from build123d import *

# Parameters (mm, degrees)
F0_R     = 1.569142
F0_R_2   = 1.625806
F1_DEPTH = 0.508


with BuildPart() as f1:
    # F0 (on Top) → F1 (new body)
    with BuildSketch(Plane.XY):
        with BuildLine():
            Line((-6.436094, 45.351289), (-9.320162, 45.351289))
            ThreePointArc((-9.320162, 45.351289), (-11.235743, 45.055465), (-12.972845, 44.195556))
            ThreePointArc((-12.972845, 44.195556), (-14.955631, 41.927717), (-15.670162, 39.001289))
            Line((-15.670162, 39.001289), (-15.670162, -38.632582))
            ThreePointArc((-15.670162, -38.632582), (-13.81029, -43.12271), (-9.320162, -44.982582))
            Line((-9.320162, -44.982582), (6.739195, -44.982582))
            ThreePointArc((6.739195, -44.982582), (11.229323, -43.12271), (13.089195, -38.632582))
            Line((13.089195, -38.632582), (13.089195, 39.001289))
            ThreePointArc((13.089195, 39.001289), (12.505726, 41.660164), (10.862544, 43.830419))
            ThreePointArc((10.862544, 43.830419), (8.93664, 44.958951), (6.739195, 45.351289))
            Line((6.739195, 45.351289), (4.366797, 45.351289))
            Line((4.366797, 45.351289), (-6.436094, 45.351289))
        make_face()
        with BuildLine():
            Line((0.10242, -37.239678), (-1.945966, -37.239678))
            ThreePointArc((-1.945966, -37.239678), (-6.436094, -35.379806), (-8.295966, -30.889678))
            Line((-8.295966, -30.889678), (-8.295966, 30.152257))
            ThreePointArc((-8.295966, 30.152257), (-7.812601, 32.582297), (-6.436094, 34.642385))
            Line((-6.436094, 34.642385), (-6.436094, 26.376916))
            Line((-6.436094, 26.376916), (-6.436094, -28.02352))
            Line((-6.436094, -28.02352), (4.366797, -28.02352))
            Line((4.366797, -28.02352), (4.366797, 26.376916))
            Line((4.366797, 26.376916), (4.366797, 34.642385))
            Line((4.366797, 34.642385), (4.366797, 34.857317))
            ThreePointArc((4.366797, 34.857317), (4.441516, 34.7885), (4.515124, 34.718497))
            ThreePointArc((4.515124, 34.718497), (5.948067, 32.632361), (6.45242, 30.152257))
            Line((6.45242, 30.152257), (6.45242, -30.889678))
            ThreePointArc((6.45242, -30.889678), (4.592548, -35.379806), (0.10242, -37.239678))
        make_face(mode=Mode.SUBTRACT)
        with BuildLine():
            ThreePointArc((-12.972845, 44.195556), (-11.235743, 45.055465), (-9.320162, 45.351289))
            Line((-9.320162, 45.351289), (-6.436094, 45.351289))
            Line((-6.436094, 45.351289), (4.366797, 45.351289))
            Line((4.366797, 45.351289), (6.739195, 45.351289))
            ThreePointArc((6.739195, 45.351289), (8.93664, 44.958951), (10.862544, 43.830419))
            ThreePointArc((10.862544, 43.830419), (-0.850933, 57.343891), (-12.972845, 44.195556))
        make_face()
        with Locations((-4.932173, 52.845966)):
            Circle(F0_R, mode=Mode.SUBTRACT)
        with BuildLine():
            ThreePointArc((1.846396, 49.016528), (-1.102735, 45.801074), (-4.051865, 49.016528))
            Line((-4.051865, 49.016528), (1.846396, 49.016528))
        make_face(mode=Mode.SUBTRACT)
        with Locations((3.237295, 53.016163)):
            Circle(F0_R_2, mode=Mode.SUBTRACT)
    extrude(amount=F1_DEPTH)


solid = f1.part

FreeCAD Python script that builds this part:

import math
import FreeCAD as App
import Part
import Sketcher
from FreeCAD import Vector
Q = App.Units.Quantity

doc = App.newDocument("Part")
body = doc.addObject("PartDesign::Body", "Body")

# Sketch on XY plane
sketch1 = doc.addObject("Sketcher::SketchObject", "Sketch")
body.addObject(sketch1)
sketch1.AttachmentSupport = (doc.XY_Plane, [""])
sketch1.MapMode = "FlatFace"
sketch1.addGeometry(Part.ArcOfCircle(Part.Circle(Vector(-9.320156, 39.001286, 0), Vector(0, 0, 1), 6.350006), math.radians(125.115466), math.radians(179.999974)), False)
sketch1.addGeometry(Part.LineSegment(Vector(-15.670162, 39.001289, 0), Vector(-15.670162, -38.632582, 0)), False)
sketch1.addGeometry(Part.ArcOfCircle(Part.Circle(Vector(-9.320162, -38.632582, 0), Vector(0, 0, 1), 6.35), math.radians(-179.999998), math.radians(-90.000002)), False)
sketch1.addGeometry(Part.LineSegment(Vector(-9.320162, -44.982582, 0), Vector(6.739195, -44.982582, 0)), False)
sketch1.addGeometry(Part.ArcOfCircle(Part.Circle(Vector(6.739195, -38.632582, 0), Vector(0, 0, 1), 6.35), math.radians(-89.999998), math.radians(-0.000002)), False)
sketch1.addGeometry(Part.LineSegment(Vector(13.089195, -38.632582, 0), Vector(13.089195, 39.001289, 0)), False)
sketch1.addGeometry(Part.ArcOfCircle(Part.Circle(Vector(6.73919, 39.001287, 0), Vector(0, 0, 1), 6.350005), math.radians(0.000016), math.radians(49.507647)), False)
sketch1.addGeometry(Part.ArcOfCircle(Part.Circle(Vector(-1.034649, 45.351289, 0), Vector(0, 0, 1), 11.994009), math.radians(-7.28486), math.radians(185.529556)), False)
sketch1.addGeometry(Part.ArcOfCircle(Part.Circle(Vector(0.10242, -30.889678, 0), Vector(0, 0, 1), 6.35), math.radians(-89.999998), math.radians(-0.000002)), False)
sketch1.addGeometry(Part.LineSegment(Vector(0.10242, -37.239678, 0), Vector(-1.945966, -37.239678, 0)), False)
sketch1.addGeometry(Part.ArcOfCircle(Part.Circle(Vector(-1.945966, -30.889678, 0), Vector(0, 0, 1), 6.35), math.radians(-179.999998), math.radians(-90.000002)), False)
sketch1.addGeometry(Part.LineSegment(Vector(-8.295966, -30.889678, 0), Vector(-8.295966, 30.152257, 0)), False)
sketch1.addGeometry(Part.ArcOfCircle(Part.Circle(Vector(-1.945967, 30.152257, 0), Vector(0, 0, 1), 6.349999), math.radians(134.999995), math.radians(180.000003)), False)
sketch1.addGeometry(Part.LineSegment(Vector(-6.436094, 34.642385, 0), Vector(-6.436094, -28.02352, 0)), False)
sketch1.addGeometry(Part.LineSegment(Vector(-6.436094, -28.02352, 0), Vector(4.366797, -28.02352, 0)), False)
sketch1.addGeometry(Part.LineSegment(Vector(4.366797, -28.02352, 0), Vector(4.366797, 34.857317, 0)), False)
sketch1.addGeometry(Part.ArcOfCircle(Part.Circle(Vector(0.102715, 30.15256, 0), Vector(0, 0, 1), 6.349578), math.radians(45.979655), math.radians(47.812912)), False)
sketch1.addGeometry(Part.ArcOfCircle(Part.Circle(Vector(0.102422, 30.152258, 0), Vector(0, 0, 1), 6.349998), math.radians(-0.000012), math.radians(45.979642)), False)
sketch1.addGeometry(Part.LineSegment(Vector(6.45242, 30.152257, 0), Vector(6.45242, -30.889678, 0)), False)
sketch1.addGeometry(Part.Circle(Vector(-4.932173, 52.845966, 0), Vector(0, 0, 1), 1.569142), False)
sketch1.addGeometry(Part.LineSegment(Vector(-4.051865, 49.016528, 0), Vector(1.846396, 49.016528, 0)), False)
sketch1.addGeometry(Part.ArcOfCircle(Part.Circle(Vector(-1.102734, 48.761234, 0), Vector(0, 0, 1), 2.96016), math.radians(175.052471), math.radians(364.947529)), False)
sketch1.addGeometry(Part.Circle(Vector(3.237295, 53.016163, 0), Vector(0, 0, 1), 1.625806), False)
sketch1.addConstraint(Sketcher.Constraint("Tangent", 0, 2, 1, 1))
sketch1.addConstraint(Sketcher.Constraint("Tangent", 1, 2, 2, 1))
sketch1.addConstraint(Sketcher.Constraint("Tangent", 2, 2, 3, 1))
sketch1.addConstraint(Sketcher.Constraint("Tangent", 3, 2, 4, 1))
sketch1.addConstraint(Sketcher.Constraint("Tangent", 4, 2, 5, 1))
sketch1.addConstraint(Sketcher.Constraint("Tangent", 5, 2, 6, 1))
sketch1.addConstraint(Sketcher.Constraint("Coincident", 6, 2, 7, 1))
sketch1.addConstraint(Sketcher.Constraint("Coincident", 7, 2, 0, 1))
sketch1.addConstraint(Sketcher.Constraint("Tangent", 8, 1, 9, 1))
sketch1.addConstraint(Sketcher.Constraint("Tangent", 9, 2, 10, 2))
sketch1.addConstraint(Sketcher.Constraint("Tangent", 10, 1, 11, 1))
sketch1.addConstraint(Sketcher.Constraint("Tangent", 11, 2, 12, 2))
sketch1.addConstraint(Sketcher.Constraint("Coincident", 12, 1, 13, 1))
sketch1.addConstraint(Sketcher.Constraint("Coincident", 13, 2, 14, 1))
sketch1.addConstraint(Sketcher.Constraint("Coincident", 14, 2, 15, 1))
sketch1.addConstraint(Sketcher.Constraint("Coincident", 15, 2, 16, 2))
sketch1.addConstraint(Sketcher.Constraint("Tangent", 16, 1, 17, 2))
sketch1.addConstraint(Sketcher.Constraint("Tangent", 17, 1, 18, 1))
sketch1.addConstraint(Sketcher.Constraint("Tangent", 18, 2, 8, 2))
sketch1.addConstraint(Sketcher.Constraint("Coincident", 20, 1, 21, 1))
sketch1.addConstraint(Sketcher.Constraint("Coincident", 21, 2, 20, 2))
sketch1.addConstraint(Sketcher.Constraint("Vertical", 1))
sketch1.addConstraint(Sketcher.Constraint("Horizontal", 3))
sketch1.addConstraint(Sketcher.Constraint("Vertical", 5))
sketch1.addConstraint(Sketcher.Constraint("Horizontal", 9))
sketch1.addConstraint(Sketcher.Constraint("Vertical", 11))
sketch1.addConstraint(Sketcher.Constraint("Vertical", 13))
sketch1.addConstraint(Sketcher.Constraint("Horizontal", 14))
sketch1.addConstraint(Sketcher.Constraint("Vertical", 15))
sketch1.addConstraint(Sketcher.Constraint("Vertical", 18))
sketch1.addConstraint(Sketcher.Constraint("Horizontal", 20))
sketch1.addConstraint(Sketcher.Constraint("Equal", 2, 4))
sketch1.addConstraint(Sketcher.Constraint("Equal", 0, 6))
sketch1.addConstraint(Sketcher.Constraint("Equal", 4, 8))
sketch1.addConstraint(Sketcher.Constraint("Equal", 8, 10))
sketch1.addConstraint(Sketcher.Constraint("Equal", 10, 12))
sketch1.addConstraint(Sketcher.Constraint("Equal", 12, 17))
sketch1.addConstraint(Sketcher.Constraint("Horizontal", 0, 3, 6, 3))
sketch1.addConstraint(Sketcher.Constraint("Horizontal", 12, 3, 17, 3))
sketch1.addConstraint(Sketcher.Constraint("Radius", 2, Q("0.25 in")))
sketch1.addConstraint(Sketcher.Constraint("Radius", 6, Q("0.2500002 in")))
sketch1.addConstraint(Sketcher.Constraint("DistanceY", 6, 3, 7, 3, Q("0.2500001 in")))
sketch1.addConstraint(Sketcher.Constraint("Radius", 7, 11.994009))
sketch1.addConstraint(Sketcher.Constraint("Radius", 21, 2.96016))
sketch1.addConstraint(Sketcher.Constraint("Diameter", 19, 3.138284))
sketch1.addConstraint(Sketcher.Constraint("Diameter", 22, 3.251612))
sketch1.addConstraint(Sketcher.Constraint("Radius", 16, 6.349578))
sketch1.addConstraint(Sketcher.Constraint("DistanceX", 14, 1, 14, 2, 10.802891))
sketch1.addConstraint(Sketcher.Constraint("DistanceX", 20, 1, 20, 2, 5.898261))
sketch1.addConstraint(Sketcher.Constraint("DistanceY", 1, 2, 1, 1, 77.633871))
sketch1.addConstraint(Sketcher.Constraint("DistanceX", 22, 3, 5, 2, 9.8519))
sketch1.addConstraint(Sketcher.Constraint("DistanceY", 12, 1, 0, 3, 4.358901))
sketch1.addConstraint(Sketcher.Constraint("DistanceX", 17, 3, 16, 1, 4.412702))
sketch1.addConstraint(Sketcher.Constraint("DistanceX", 21, 2, 22, 3, 1.390899))
sketch1.addConstraint(Sketcher.Constraint("DistanceX", 3, 1, 3, 2, 16.059357))
sketch1.addConstraint(Sketcher.Constraint("DistanceX", 9, 2, 9, 1, 2.048386))
sketch1.addConstraint(Sketcher.Constraint("DistanceY", 11, 1, 11, 2, 61.041935))
sketch1.addConstraint(Sketcher.Constraint("DistanceY", 13, 2, 13, 1, 62.665905))
sketch1.addConstraint(Sketcher.Constraint("DistanceY", 15, 1, 15, 2, 62.880837))
sketch1.addConstraint(Sketcher.Constraint("DistanceX", 2, 3, -1, 1, 9.320162))
sketch1.addConstraint(Sketcher.Constraint("DistanceY", 2, 3, -1, 1, 38.632582))
sketch1.addConstraint(Sketcher.Constraint("DistanceX", 7, 3, -1, 1, 1.034649))
sketch1.addConstraint(Sketcher.Constraint("DistanceX", -1, 1, 8, 3, 0.10242))
sketch1.addConstraint(Sketcher.Constraint("DistanceY", -1, 1, 21, 2, 49.016528))
sketch1.addConstraint(Sketcher.Constraint("DistanceY", 0, 3, 19, 3, 13.84468))
sketch1.addConstraint(Sketcher.Constraint("DistanceX", 19, 3, 16, 3, 5.034888))
sketch1.addConstraint(Sketcher.Constraint("DistanceY", 21, 3, 22, 3, 4.254929))
pad1 = doc.addObject("PartDesign::Pad", "Pad")
body.addObject(pad1)
pad1.Profile = sketch1
pad1.Length = Q("0.02 in")

doc.recompute()
